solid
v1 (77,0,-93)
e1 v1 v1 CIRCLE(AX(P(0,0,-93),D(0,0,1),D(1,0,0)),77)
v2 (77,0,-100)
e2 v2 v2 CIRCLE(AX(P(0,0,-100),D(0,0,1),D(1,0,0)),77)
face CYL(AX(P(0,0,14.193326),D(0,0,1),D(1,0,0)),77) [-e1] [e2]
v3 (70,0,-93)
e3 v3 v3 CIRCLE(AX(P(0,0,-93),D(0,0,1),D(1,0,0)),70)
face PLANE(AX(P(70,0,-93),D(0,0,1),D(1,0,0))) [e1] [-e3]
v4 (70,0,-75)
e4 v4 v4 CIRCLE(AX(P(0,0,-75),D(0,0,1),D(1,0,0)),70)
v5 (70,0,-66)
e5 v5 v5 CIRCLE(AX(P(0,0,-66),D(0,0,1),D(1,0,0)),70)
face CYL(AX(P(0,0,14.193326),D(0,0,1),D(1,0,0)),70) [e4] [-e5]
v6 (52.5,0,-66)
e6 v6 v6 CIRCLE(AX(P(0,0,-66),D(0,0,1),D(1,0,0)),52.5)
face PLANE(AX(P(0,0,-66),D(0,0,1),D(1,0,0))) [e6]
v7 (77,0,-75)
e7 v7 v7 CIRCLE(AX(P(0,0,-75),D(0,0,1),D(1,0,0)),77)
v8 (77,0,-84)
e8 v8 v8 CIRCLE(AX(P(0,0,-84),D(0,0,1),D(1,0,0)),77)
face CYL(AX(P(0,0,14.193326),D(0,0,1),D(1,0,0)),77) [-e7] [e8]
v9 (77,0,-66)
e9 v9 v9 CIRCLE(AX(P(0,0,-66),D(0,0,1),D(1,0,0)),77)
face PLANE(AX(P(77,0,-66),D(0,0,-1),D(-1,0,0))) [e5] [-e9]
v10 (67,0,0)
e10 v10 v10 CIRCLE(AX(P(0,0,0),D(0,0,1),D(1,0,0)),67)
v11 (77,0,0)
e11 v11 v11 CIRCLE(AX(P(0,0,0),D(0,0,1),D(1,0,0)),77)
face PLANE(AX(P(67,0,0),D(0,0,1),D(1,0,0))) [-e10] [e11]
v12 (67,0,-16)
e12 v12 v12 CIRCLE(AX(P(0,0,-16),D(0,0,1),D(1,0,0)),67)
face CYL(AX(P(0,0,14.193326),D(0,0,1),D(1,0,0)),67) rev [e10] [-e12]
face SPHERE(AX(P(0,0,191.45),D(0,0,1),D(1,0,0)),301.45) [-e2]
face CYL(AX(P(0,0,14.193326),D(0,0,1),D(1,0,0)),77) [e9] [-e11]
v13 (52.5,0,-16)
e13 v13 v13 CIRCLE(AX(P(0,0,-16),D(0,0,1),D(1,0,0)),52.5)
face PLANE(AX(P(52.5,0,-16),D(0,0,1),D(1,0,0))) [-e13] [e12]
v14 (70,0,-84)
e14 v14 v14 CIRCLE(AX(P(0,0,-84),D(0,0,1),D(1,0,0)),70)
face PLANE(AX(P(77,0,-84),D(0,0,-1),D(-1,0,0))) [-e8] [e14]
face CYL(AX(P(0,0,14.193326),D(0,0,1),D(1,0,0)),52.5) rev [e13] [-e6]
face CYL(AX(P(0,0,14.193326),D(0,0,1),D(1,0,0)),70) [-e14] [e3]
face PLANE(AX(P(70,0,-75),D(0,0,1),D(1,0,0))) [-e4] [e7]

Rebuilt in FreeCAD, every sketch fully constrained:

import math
import FreeCAD as App
import Part
import Sketcher
Q = App.Units.Quantity

doc = App.newDocument("Part")
body = doc.addObject("PartDesign::Body", "Body")

# Sketch on XZ plane
sketch1 = body.newObject("Sketcher::SketchObject", "Sketch")
sketch1.AttachmentSupport = (doc.getObject("XZ_Plane"), [""])
sketch1.MapMode = "FlatFace"
sketch1.addGeometry(Part.LineSegment(App.Vector(0, -110, 0), App.Vector(0, -66, 0)), False)
sketch1.addGeometry(Part.LineSegment(App.Vector(0, -66, 0), App.Vector(52, -66, 0)), False)
sketch1.addGeometry(Part.LineSegment(App.Vector(52, -66, 0), App.Vector(52, -16, 0)), False)
sketch1.addGeometry(Part.LineSegment(App.Vector(52, -16, 0), App.Vector(67, -16, 0)), False)
sketch1.addGeometry(Part.LineSegment(App.Vector(67, -16, 0), App.Vector(67, 0, 0)), False)
sketch1.addGeometry(Part.LineSegment(App.Vector(67, 0, 0), App.Vector(77, 0, 0)), False)
sketch1.addGeometry(Part.LineSegment(App.Vector(77, 0, 0), App.Vector(77, -66, 0)), False)
sketch1.addGeometry(Part.LineSegment(App.Vector(77, -66, 0), App.Vector(70, -66, 0)), False)
sketch1.addGeometry(Part.LineSegment(App.Vector(70, -66, 0), App.Vector(70, -75, 0)), False)
sketch1.addGeometry(Part.LineSegment(App.Vector(70, -75, 0), App.Vector(77, -75, 0)), False)
sketch1.addGeometry(Part.LineSegment(App.Vector(77, -75, 0), App.Vector(77, -84, 0)), False)
sketch1.addGeometry(Part.LineSegment(App.Vector(77, -84, 0), App.Vector(70, -84, 0)), False)
sketch1.addGeometry(Part.LineSegment(App.Vector(70, -84, 0), App.Vector(70, -93, 0)), False)
sketch1.addGeometry(Part.LineSegment(App.Vector(70, -93, 0), App.Vector(77, -93, 0)), False)
sketch1.addGeometry(Part.LineSegment(App.Vector(77, -93, 0), App.Vector(77, -100, 0)), False)
sketch1.addGeometry(Part.ArcOfCircle(Part.Circle(App.Vector(0, 191, 0), App.Vector(0, 0, 1), 301), math.radians(-90), math.radians(-75.2)), False)
sketch1.addConstraint(Sketcher.Constraint("Coincident", 0, 2, 1, 1))
sketch1.addConstraint(Sketcher.Constraint("Coincident", 1, 2, 2, 1))
sketch1.addConstraint(Sketcher.Constraint("Coincident", 2, 2, 3, 1))
sketch1.addConstraint(Sketcher.Constraint("Coincident", 3, 2, 4, 1))
sketch1.addConstraint(Sketcher.Constraint("Coincident", 4, 2, 5, 1))
sketch1.addConstraint(Sketcher.Constraint("Coincident", 5, 2, 6, 1))
sketch1.addConstraint(Sketcher.Constraint("Coincident", 6, 2, 7, 1))
sketch1.addConstraint(Sketcher.Constraint("Coincident", 7, 2, 8, 1))
sketch1.addConstraint(Sketcher.Constraint("Coincident", 8, 2, 9, 1))
sketch1.addConstraint(Sketcher.Constraint("Coincident", 9, 2, 10, 1))
sketch1.addConstraint(Sketcher.Constraint("Coincident", 10, 2, 11, 1))
sketch1.addConstraint(Sketcher.Constraint("Coincident", 11, 2, 12, 1))
sketch1.addConstraint(Sketcher.Constraint("Coincident", 12, 2, 13, 1))
sketch1.addConstraint(Sketcher.Constraint("Coincident", 13, 2, 14, 1))
sketch1.addConstraint(Sketcher.Constraint("Coincident", 14, 2, 15, 2))
sketch1.addConstraint(Sketcher.Constraint("Coincident", 15, 1, 0, 1))
sketch1.addConstraint(Sketcher.Constraint("Vertical", 0))
sketch1.addConstraint(Sketcher.Constraint("Horizontal", 1))
sketch1.addConstraint(Sketcher.Constraint("Vertical", 2))
sketch1.addConstraint(Sketcher.Constraint("Horizontal", 3))
sketch1.addConstraint(Sketcher.Constraint("Vertical", 4))
sketch1.addConstraint(Sketcher.Constraint("Horizontal", 5))
sketch1.addConstraint(Sketcher.Constraint("Vertical", 6))
sketch1.addConstraint(Sketcher.Constraint("Horizontal", 7))
sketch1.addConstraint(Sketcher.Constraint("Vertical", 8))
sketch1.addConstraint(Sketcher.Constraint("Horizontal", 9))
sketch1.addConstraint(Sketcher.Constraint("Vertical", 10))
sketch1.addConstraint(Sketcher.Constraint("Horizontal", 11))
sketch1.addConstraint(Sketcher.Constraint("Vertical", 12))
sketch1.addConstraint(Sketcher.Constraint("Horizontal", 13))
sketch1.addConstraint(Sketcher.Constraint("Vertical", 14))
sketch1.addConstraint(Sketcher.Constraint("PointOnObject", 15, 3, -2))
sketch1.addConstraint(Sketcher.Constraint("PointOnObject", 0, 2, -2))
sketch1.addConstraint(Sketcher.Constraint("PointOnObject", 4, 2, -1))
sketch1.addConstraint(Sketcher.Constraint("Horizontal", 1, 2, 6, 2))
sketch1.addConstraint(Sketcher.Constraint("Vertical", 6, 2, 9, 2))
sketch1.addConstraint(Sketcher.Constraint("Vertical", 8, 2, 11, 2))
sketch1.addConstraint(Sketcher.Constraint("Vertical", 10, 2, 13, 2))
sketch1.addConstraint(Sketcher.Constraint("Equal", 8, 10))
sketch1.addConstraint(Sketcher.Constraint("Equal", 10, 12))
sketch1.addConstraint(Sketcher.Constraint("Equal", 13, 14))
sketch1.addConstraint(Sketcher.Constraint("DistanceX", 5, 1, 5, 2, Q("10 mm")))
sketch1.addConstraint(Sketcher.Constraint("DistanceX", 7, 2, 7, 1, Q("7 mm")))
sketch1.addConstraint(Sketcher.Constraint("DistanceY", 0, 1, 0, 2, Q("44 mm")))
sketch1.addConstraint(Sketcher.Constraint("DistanceY", 2, 1, 2, 2, Q("50 mm")))
sketch1.addConstraint(Sketcher.Constraint("DistanceY", 4, 1, 4, 2, Q("16 mm")))
sketch1.addConstraint(Sketcher.Constraint("DistanceY", 8, 2, 8, 1, Q("9 mm")))
sketch1.addConstraint(Sketcher.Constraint("Radius", 15, Q("301.45 mm")))
sketch1.addConstraint(Sketcher.Constraint("DistanceX", 1, 1, 1, 2, Q("52.5 mm")))
revolution = body.newObject("PartDesign::Revolution", "Revolution")
revolution.Profile = sketch1
revolution.ReferenceAxis = (sketch1, ["V_Axis"])
revolution.Angle = 360

doc.recompute()
